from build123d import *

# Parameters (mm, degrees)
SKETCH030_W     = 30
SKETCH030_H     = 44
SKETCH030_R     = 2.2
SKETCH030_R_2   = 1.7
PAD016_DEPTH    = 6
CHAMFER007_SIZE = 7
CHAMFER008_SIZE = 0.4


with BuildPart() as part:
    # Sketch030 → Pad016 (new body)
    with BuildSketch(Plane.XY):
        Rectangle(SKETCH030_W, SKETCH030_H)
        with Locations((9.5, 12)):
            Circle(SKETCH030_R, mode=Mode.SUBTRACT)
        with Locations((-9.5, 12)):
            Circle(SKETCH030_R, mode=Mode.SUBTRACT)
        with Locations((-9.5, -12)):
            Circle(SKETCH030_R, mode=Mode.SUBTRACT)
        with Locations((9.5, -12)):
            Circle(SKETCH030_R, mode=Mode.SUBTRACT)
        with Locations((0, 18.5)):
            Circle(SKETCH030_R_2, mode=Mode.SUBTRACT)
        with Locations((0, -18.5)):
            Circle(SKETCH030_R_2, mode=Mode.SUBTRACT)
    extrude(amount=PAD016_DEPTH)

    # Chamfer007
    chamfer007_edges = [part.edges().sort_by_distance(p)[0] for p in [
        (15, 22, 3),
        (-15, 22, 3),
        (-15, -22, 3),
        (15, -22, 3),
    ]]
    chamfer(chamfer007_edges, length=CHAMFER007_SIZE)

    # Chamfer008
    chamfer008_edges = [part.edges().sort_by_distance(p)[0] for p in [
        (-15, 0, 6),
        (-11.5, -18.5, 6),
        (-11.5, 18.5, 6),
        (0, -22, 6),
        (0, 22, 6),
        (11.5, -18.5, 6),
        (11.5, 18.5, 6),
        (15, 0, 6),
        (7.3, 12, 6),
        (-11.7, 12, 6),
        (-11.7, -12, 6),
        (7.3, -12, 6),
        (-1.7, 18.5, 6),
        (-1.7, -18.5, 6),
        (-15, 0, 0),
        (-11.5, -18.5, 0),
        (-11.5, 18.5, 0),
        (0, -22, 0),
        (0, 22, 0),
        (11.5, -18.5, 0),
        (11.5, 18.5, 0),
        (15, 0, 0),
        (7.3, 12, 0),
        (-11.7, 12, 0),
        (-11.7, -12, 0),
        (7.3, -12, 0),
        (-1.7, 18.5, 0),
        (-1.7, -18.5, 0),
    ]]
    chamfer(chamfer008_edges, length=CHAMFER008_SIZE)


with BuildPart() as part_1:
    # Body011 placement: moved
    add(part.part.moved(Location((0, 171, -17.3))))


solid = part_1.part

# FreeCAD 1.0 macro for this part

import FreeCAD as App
import Part
import Sketcher


def edges_at(feature, points):
    """Names of the edges that pass closest to the given points."""
    edges = feature.Shape.Edges
    near = lambda p: min(range(len(edges)), key=lambda i: edges[i].distToShape(Part.Vertex(*p))[0])
    return sorted({f"Edge{near(p) + 1}" for p in points})


def add_polygon(sketch, points):
    """Adds a closed chain of lines whose ends are joined by coincident constraints."""
    first, n = sketch.GeometryCount, len(points)
    for a, b in zip(points, points[1:] + points[:1]):
        sketch.addGeometry(Part.LineSegment(App.Vector(*a, 0), App.Vector(*b, 0)), False)
    for i in range(n):
        sketch.addConstraint(Sketcher.Constraint("Coincident", first + i, 2, first + (i + 1) % n, 1))

doc = App.newDocument("Part")
body = doc.addObject("PartDesign::Body", "Body")

sketch1 = body.newObject("Sketcher::SketchObject", "Sketch")
sketch1.AttachmentSupport = (doc.getObject("XY_Plane"), [""])
sketch1.MapMode = "FlatFace"
add_polygon(sketch1, [(-15, 22), (-15, -22), (15, -22), (15, 22)])
sketch1.addGeometry(Part.Circle(App.Vector(-9.5, -12, 0), App.Vector(0, 0, 1), 2.2), False)
sketch1.addGeometry(Part.Circle(App.Vector(0, -18.5, 0), App.Vector(0, 0, 1), 1.7), False)
sketch1.addGeometry(Part.Circle(App.Vector(9.5, -12, 0), App.Vector(0, 0, 1), 2.2), False)
sketch1.addGeometry(Part.Circle(App.Vector(-9.5, 12, 0), App.Vector(0, 0, 1), 2.2), False)
sketch1.addGeometry(Part.Circle(App.Vector(0, 18.5, 0), App.Vector(0, 0, 1), 1.7), False)
sketch1.addGeometry(Part.Circle(App.Vector(9.5, 12, 0), App.Vector(0, 0, 1), 2.2), False)
sketch1.addConstraint(Sketcher.Constraint("Vertical", 0))
sketch1.addConstraint(Sketcher.Constraint("Horizontal", 1))
sketch1.addConstraint(Sketcher.Constraint("Vertical", 2))
sketch1.addConstraint(Sketcher.Constraint("Horizontal", 3))
sketch1.addConstraint(Sketcher.Constraint("Equal", 4, 6))
sketch1.addConstraint(Sketcher.Constraint("Equal", 6, 7))
sketch1.addConstraint(Sketcher.Constraint("Equal", 5, 8))
sketch1.addConstraint(Sketcher.Constraint("Equal", 7, 9))
sketch1.addConstraint(Sketcher.Constraint("Symmetric", 6, 3, 7, 3, -1, 1))
sketch1.addConstraint(Sketcher.Constraint("Symmetric", 5, 3, 8, 3, -1, 1))
sketch1.addConstraint(Sketcher.Constraint("Symmetric", 4, 3, 9, 3, -1, 1))
sketch1.addConstraint(Sketcher.Constraint("Symmetric", 0, 2, 2, 2, -1, 1))
sketch1.addConstraint(Sketcher.Constraint("Symmetric", 4, 3, 6, 3, -2))
sketch1.addConstraint(Sketcher.Constraint("PointOnObject", 5, 3, -2))
sketch1.addConstraint(Sketcher.Constraint("Diameter", 4, 4.4))
sketch1.addConstraint(Sketcher.Constraint("Diameter", 5, 3.4))
sketch1.addConstraint(Sketcher.Constraint("DistanceX", 1, 1, 1, 2, 30.0))
sketch1.addConstraint(Sketcher.Constraint("DistanceY", 0, 2, 0, 1, 44.0))
sketch1.addConstraint(Sketcher.Constraint("DistanceY", 4, 3, -1, 1, 12.0))
sketch1.addConstraint(Sketcher.Constraint("DistanceX", 4, 3, 6, 3, 19.0))
sketch1.addConstraint(Sketcher.Constraint("DistanceY", 5, 3, 8, 3, 37.0))
pad1 = body.newObject("PartDesign::Pad", "Pad")
pad1.Profile = sketch1
pad1.Length = 6
doc.recompute()

chamfer = body.newObject("PartDesign::Chamfer", "Chamfer")
chamfer.Base = (pad1, edges_at(pad1, [
    (15, 22, 3),
    (-15, 22, 3),
    (-15, -22, 3),
    (15, -22, 3),
]))
chamfer.Size = 7
doc.recompute()

chamfer2 = body.newObject("PartDesign::Chamfer", "Chamfer001")
chamfer2.Base = (chamfer, edges_at(chamfer, [
    (-15, 0, 6),
    (-11.5, -18.5, 6),
    (-11.5, 18.5, 6),
    (0, -22, 6),
    (0, 22, 6),
    (11.5, -18.5, 6),
    (11.5, 18.5, 6),
    (15, 0, 6),
    (7.3, 12, 6),
    (-11.7, 12, 6),
    (-11.7, -12, 6),
    (7.3, -12, 6),
    (-1.7, 18.5, 6),
    (-1.7, -18.5, 6),
    (-15, 0, 0),
    (-11.5, -18.5, 0),
    (-11.5, 18.5, 0),
    (0, -22, 0),
    (0, 22, 0),
    (11.5, -18.5, 0),
    (11.5, 18.5, 0),
    (15, 0, 0),
    (7.3, 12, 0),
    (-11.7, 12, 0),
    (-11.7, -12, 0),
    (7.3, -12, 0),
    (-1.7, 18.5, 0),
    (-1.7, -18.5, 0),
]))
chamfer2.Size = 0.4
body2 = doc.addObject("PartDesign::Body", "Body001")
doc.recompute()

body.Placement = App.Placement(App.Vector(0, 171, -17.3), App.Rotation(App.Vector(0, 0, 1), 0))
boolean = body2.newObject("PartDesign::Boolean", "Boolean")
boolean.Type = "Fuse"
boolean.addObjects([body])

doc.recompute()
